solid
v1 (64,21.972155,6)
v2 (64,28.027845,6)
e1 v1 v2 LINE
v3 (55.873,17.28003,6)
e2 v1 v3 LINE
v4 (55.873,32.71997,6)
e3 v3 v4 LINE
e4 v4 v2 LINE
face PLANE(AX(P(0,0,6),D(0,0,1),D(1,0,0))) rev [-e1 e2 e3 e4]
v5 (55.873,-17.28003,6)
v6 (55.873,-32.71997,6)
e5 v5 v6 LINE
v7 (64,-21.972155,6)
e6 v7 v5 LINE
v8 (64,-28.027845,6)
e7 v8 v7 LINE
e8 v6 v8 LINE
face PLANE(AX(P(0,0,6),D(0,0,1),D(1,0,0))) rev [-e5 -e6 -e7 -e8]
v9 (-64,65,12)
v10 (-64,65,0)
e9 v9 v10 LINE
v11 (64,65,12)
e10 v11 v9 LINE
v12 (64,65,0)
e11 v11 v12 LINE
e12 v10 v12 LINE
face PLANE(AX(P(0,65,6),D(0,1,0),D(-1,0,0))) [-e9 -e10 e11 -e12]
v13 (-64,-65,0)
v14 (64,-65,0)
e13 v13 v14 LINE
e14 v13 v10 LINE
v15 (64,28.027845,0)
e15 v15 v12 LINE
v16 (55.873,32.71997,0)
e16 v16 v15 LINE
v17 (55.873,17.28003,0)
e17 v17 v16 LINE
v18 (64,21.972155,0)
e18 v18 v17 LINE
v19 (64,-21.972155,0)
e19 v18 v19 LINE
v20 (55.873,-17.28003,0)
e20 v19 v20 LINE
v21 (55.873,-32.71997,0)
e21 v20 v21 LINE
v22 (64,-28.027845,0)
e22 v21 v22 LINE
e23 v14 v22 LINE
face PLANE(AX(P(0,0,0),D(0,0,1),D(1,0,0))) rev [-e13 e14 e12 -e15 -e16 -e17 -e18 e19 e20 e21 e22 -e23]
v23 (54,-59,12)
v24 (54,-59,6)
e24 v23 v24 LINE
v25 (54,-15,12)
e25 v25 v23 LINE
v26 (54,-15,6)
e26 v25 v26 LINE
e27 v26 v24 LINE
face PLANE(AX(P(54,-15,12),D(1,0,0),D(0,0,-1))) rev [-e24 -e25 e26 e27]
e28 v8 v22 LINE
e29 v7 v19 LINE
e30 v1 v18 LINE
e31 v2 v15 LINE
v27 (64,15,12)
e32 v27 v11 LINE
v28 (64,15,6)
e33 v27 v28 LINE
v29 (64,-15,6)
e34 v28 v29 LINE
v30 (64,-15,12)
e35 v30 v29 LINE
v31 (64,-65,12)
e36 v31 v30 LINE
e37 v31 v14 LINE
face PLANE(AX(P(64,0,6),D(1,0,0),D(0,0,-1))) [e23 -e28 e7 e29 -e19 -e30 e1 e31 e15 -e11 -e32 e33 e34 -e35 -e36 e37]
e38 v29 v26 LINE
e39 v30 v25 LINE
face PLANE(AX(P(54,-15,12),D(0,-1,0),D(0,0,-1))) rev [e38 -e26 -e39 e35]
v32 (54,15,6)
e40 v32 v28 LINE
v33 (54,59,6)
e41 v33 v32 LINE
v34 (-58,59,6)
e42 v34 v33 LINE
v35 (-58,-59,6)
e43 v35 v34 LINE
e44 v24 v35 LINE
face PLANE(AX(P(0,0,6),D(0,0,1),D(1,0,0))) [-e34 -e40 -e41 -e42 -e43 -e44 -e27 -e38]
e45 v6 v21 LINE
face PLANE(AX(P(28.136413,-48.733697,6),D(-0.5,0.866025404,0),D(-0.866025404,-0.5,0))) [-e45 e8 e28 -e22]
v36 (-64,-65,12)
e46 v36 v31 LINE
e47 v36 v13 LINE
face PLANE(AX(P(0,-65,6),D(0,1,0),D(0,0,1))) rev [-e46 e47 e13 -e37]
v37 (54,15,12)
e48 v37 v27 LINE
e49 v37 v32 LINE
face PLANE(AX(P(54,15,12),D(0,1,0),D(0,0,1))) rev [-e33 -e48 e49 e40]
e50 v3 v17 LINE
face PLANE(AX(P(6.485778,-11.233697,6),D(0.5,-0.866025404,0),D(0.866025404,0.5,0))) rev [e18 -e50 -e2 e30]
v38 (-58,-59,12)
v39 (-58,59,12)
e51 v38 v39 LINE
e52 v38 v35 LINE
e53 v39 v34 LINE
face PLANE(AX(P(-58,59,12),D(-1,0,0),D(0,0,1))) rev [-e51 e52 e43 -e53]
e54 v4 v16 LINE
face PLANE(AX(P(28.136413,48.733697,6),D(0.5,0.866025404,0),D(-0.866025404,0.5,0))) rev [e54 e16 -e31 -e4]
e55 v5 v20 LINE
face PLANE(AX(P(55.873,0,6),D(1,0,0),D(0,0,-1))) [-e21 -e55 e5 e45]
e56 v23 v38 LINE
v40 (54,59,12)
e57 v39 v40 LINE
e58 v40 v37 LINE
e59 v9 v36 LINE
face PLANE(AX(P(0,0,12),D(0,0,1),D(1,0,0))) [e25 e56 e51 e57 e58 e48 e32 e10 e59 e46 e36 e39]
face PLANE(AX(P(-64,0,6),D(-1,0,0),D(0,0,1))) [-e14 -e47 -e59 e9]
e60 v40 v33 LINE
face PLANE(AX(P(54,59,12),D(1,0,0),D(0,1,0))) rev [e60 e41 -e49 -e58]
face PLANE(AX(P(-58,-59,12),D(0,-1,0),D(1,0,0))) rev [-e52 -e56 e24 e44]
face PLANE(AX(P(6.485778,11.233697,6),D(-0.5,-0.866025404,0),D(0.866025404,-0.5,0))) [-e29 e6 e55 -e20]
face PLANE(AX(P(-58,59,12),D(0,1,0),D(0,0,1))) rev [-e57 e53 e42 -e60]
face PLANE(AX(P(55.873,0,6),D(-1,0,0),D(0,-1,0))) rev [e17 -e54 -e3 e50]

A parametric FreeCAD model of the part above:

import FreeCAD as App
import Part
import Sketcher
from FreeCAD import Vector
Q = App.Units.Quantity

doc = App.newDocument("Part")
body = doc.addObject("PartDesign::Body", "Body")

# Sketch on XY plane
sketch1 = doc.addObject("Sketcher::SketchObject", "Sketch")
body.addObject(sketch1)
sketch1.AttachmentSupport = (doc.XY_Plane, [""])
sketch1.MapMode = "FlatFace"
sketch1.addGeometry([
    Part.LineSegment(Vector(64, 21.972155, 0), Vector(55.873, 17.28003, 0)),  # 0
    Part.LineSegment(Vector(55.873, 17.28003, 0), Vector(55.873, 32.71997, 0)),  # 1
    Part.LineSegment(Vector(55.873, 32.71997, 0), Vector(64, 28.027845, 0)),  # 2
    Part.LineSegment(Vector(64, 28.027845, 0), Vector(64, 65, 0)),  # 3
    Part.LineSegment(Vector(64, 65, 0), Vector(-64, 65, 0)),  # 4
    Part.LineSegment(Vector(-64, 65, 0), Vector(-64, -65, 0)),  # 5
    Part.LineSegment(Vector(-64, -65, 0), Vector(64, -65, 0)),  # 6
    Part.LineSegment(Vector(64, -65, 0), Vector(64, -28.027845, 0)),  # 7
    Part.LineSegment(Vector(64, -28.027845, 0), Vector(55.873, -32.71997, 0)),  # 8
    Part.LineSegment(Vector(55.873, -32.71997, 0), Vector(55.873, -17.28003, 0)),  # 9
    Part.LineSegment(Vector(55.873, -17.28003, 0), Vector(64, -21.972155, 0)),  # 10
    Part.LineSegment(Vector(64, -21.972155, 0), Vector(64, 21.972155, 0)),  # 11
], False)
sketch1.addConstraint([
    Sketcher.Constraint("Coincident", 0, 2, 1, 1),
    Sketcher.Constraint("Coincident", 1, 2, 2, 1),
    Sketcher.Constraint("Coincident", 2, 2, 3, 1),
    Sketcher.Constraint("Coincident", 3, 2, 4, 1),
    Sketcher.Constraint("Coincident", 4, 2, 5, 1),
    Sketcher.Constraint("Coincident", 5, 2, 6, 1),
    Sketcher.Constraint("Coincident", 6, 2, 7, 1),
    Sketcher.Constraint("Coincident", 7, 2, 8, 1),
    Sketcher.Constraint("Coincident", 8, 2, 9, 1),
    Sketcher.Constraint("Coincident", 9, 2, 10, 1),
    Sketcher.Constraint("Coincident", 10, 2, 11, 1),
    Sketcher.Constraint("Coincident", 11, 2, 0, 1),
    Sketcher.Constraint("Vertical", 1),
    Sketcher.Constraint("Vertical", 3),
    Sketcher.Constraint("Horizontal", 4),
    Sketcher.Constraint("Vertical", 5),
    Sketcher.Constraint("Horizontal", 6),
    Sketcher.Constraint("Vertical", 7),
    Sketcher.Constraint("Vertical", 9),
    Sketcher.Constraint("Vertical", 11),
    Sketcher.Constraint("Symmetric", 3, 2, 5, 2, -1, 1),
    Sketcher.Constraint("Symmetric", 2, 2, 7, 2, -1),
    Sketcher.Constraint("Symmetric", 1, 2, 8, 2, -1),
    Sketcher.Constraint("Parallel", 0, 8),
    Sketcher.Constraint("Parallel", 2, 10),
    Sketcher.Constraint("Vertical", 7, 2, 10, 2),
    Sketcher.Constraint("Equal", 1, 9),
    Sketcher.Constraint("DistanceX", 4, 2, 4, 1, Q("128 mm")),
    Sketcher.Constraint("DistanceY", 5, 2, 5, 1, Q("130 mm")),
    Sketcher.Constraint("Angle", 0, Q("-150 deg")),
    Sketcher.Constraint("DistanceY", 8, 2, 0, 2, Q("50 mm")),
    Sketcher.Constraint("DistanceX", -1, 1, 0, 2, Q("55.873 mm")),
    Sketcher.Constraint("DistanceY", 1, 1, 1, 2, Q("15.439941 mm")),
])
pad1 = doc.addObject("PartDesign::Pad", "Pad")
body.addObject(pad1)
pad1.Profile = sketch1
pad1.Length = 6

# Sketch on XY plane
sketch2 = doc.addObject("Sketcher::SketchObject", "Sketch001")
body.addObject(sketch2)
sketch2.AttachmentSupport = (doc.XY_Plane, [""])
sketch2.MapMode = "FlatFace"
sketch2.AttachmentOffset = App.Placement(Vector(0, 0, 6), App.Rotation())
sketch2.addGeometry([
    Part.LineSegment(Vector(64, 65, 0), Vector(-64, 65, 0)),  # 0
    Part.LineSegment(Vector(-64, 65, 0), Vector(-64, -65, 0)),  # 1
    Part.LineSegment(Vector(-64, -65, 0), Vector(64, -65, 0)),  # 2
    Part.LineSegment(Vector(64, -65, 0), Vector(64, -15, 0)),  # 3
    Part.LineSegment(Vector(64, -15, 0), Vector(54, -15, 0)),  # 4
    Part.LineSegment(Vector(54, -15, 0), Vector(54, -59, 0)),  # 5
    Part.LineSegment(Vector(54, -59, 0), Vector(-58, -59, 0)),  # 6
    Part.LineSegment(Vector(-58, -59, 0), Vector(-58, 59, 0)),  # 7
    Part.LineSegment(Vector(-58, 59, 0), Vector(54, 59, 0)),  # 8
    Part.LineSegment(Vector(54, 59, 0), Vector(54, 15, 0)),  # 9
    Part.LineSegment(Vector(54, 15, 0), Vector(64, 15, 0)),  # 10
    Part.LineSegment(Vector(64, 15, 0), Vector(64, 65, 0)),  # 11
], False)
sketch2.addConstraint([
    Sketcher.Constraint("Coincident", 0, 2, 1, 1),
    Sketcher.Constraint("Coincident", 1, 2, 2, 1),
    Sketcher.Constraint("Coincident", 2, 2, 3, 1),
    Sketcher.Constraint("Coincident", 3, 2, 4, 1),
    Sketcher.Constraint("Coincident", 4, 2, 5, 1),
    Sketcher.Constraint("Coincident", 5, 2, 6, 1),
    Sketcher.Constraint("Coincident", 6, 2, 7, 1),
    Sketcher.Constraint("Coincident", 7, 2, 8, 1),
    Sketcher.Constraint("Coincident", 8, 2, 9, 1),
    Sketcher.Constraint("Coincident", 9, 2, 10, 1),
    Sketcher.Constraint("Coincident", 10, 2, 11, 1),
    Sketcher.Constraint("Coincident", 11, 2, 0, 1),
    Sketcher.Constraint("Horizontal", 0),
    Sketcher.Constraint("Vertical", 1),
    Sketcher.Constraint("Horizontal", 2),
    Sketcher.Constraint("Vertical", 3),
    Sketcher.Constraint("Horizontal", 4),
    Sketcher.Constraint("Vertical", 5),
    Sketcher.Constraint("Horizontal", 6),
    Sketcher.Constraint("Vertical", 7),
    Sketcher.Constraint("Horizontal", 8),
    Sketcher.Constraint("Vertical", 9),
    Sketcher.Constraint("Horizontal", 10),
    Sketcher.Constraint("Vertical", 11),
    Sketcher.Constraint("Symmetric", 0, 2, 2, 2, -1, 1),
    Sketcher.Constraint("Symmetric", 5, 2, 8, 2, -1),
    Sketcher.Constraint("Symmetric", 3, 2, 10, 2, -1),
    Sketcher.Constraint("DistanceX", 0, 2, 0, 1, Q("128 mm")),
    Sketcher.Constraint("DistanceX", 4, 2, 4, 1, Q("10 mm")),
    Sketcher.Constraint("DistanceX", 6, 2, 6, 1, Q("112 mm")),
    Sketcher.Constraint("DistanceY", 1, 2, 1, 1, Q("130 mm")),
    Sketcher.Constraint("DistanceY", 3, 1, 3, 2, Q("50 mm")),
    Sketcher.Constraint("DistanceY", 5, 2, 5, 1, Q("44 mm")),
])
pad2 = doc.addObject("PartDesign::Pad", "Pad001")
body.addObject(pad2)
pad2.Profile = sketch2
pad2.Length = 6

doc.recompute()
